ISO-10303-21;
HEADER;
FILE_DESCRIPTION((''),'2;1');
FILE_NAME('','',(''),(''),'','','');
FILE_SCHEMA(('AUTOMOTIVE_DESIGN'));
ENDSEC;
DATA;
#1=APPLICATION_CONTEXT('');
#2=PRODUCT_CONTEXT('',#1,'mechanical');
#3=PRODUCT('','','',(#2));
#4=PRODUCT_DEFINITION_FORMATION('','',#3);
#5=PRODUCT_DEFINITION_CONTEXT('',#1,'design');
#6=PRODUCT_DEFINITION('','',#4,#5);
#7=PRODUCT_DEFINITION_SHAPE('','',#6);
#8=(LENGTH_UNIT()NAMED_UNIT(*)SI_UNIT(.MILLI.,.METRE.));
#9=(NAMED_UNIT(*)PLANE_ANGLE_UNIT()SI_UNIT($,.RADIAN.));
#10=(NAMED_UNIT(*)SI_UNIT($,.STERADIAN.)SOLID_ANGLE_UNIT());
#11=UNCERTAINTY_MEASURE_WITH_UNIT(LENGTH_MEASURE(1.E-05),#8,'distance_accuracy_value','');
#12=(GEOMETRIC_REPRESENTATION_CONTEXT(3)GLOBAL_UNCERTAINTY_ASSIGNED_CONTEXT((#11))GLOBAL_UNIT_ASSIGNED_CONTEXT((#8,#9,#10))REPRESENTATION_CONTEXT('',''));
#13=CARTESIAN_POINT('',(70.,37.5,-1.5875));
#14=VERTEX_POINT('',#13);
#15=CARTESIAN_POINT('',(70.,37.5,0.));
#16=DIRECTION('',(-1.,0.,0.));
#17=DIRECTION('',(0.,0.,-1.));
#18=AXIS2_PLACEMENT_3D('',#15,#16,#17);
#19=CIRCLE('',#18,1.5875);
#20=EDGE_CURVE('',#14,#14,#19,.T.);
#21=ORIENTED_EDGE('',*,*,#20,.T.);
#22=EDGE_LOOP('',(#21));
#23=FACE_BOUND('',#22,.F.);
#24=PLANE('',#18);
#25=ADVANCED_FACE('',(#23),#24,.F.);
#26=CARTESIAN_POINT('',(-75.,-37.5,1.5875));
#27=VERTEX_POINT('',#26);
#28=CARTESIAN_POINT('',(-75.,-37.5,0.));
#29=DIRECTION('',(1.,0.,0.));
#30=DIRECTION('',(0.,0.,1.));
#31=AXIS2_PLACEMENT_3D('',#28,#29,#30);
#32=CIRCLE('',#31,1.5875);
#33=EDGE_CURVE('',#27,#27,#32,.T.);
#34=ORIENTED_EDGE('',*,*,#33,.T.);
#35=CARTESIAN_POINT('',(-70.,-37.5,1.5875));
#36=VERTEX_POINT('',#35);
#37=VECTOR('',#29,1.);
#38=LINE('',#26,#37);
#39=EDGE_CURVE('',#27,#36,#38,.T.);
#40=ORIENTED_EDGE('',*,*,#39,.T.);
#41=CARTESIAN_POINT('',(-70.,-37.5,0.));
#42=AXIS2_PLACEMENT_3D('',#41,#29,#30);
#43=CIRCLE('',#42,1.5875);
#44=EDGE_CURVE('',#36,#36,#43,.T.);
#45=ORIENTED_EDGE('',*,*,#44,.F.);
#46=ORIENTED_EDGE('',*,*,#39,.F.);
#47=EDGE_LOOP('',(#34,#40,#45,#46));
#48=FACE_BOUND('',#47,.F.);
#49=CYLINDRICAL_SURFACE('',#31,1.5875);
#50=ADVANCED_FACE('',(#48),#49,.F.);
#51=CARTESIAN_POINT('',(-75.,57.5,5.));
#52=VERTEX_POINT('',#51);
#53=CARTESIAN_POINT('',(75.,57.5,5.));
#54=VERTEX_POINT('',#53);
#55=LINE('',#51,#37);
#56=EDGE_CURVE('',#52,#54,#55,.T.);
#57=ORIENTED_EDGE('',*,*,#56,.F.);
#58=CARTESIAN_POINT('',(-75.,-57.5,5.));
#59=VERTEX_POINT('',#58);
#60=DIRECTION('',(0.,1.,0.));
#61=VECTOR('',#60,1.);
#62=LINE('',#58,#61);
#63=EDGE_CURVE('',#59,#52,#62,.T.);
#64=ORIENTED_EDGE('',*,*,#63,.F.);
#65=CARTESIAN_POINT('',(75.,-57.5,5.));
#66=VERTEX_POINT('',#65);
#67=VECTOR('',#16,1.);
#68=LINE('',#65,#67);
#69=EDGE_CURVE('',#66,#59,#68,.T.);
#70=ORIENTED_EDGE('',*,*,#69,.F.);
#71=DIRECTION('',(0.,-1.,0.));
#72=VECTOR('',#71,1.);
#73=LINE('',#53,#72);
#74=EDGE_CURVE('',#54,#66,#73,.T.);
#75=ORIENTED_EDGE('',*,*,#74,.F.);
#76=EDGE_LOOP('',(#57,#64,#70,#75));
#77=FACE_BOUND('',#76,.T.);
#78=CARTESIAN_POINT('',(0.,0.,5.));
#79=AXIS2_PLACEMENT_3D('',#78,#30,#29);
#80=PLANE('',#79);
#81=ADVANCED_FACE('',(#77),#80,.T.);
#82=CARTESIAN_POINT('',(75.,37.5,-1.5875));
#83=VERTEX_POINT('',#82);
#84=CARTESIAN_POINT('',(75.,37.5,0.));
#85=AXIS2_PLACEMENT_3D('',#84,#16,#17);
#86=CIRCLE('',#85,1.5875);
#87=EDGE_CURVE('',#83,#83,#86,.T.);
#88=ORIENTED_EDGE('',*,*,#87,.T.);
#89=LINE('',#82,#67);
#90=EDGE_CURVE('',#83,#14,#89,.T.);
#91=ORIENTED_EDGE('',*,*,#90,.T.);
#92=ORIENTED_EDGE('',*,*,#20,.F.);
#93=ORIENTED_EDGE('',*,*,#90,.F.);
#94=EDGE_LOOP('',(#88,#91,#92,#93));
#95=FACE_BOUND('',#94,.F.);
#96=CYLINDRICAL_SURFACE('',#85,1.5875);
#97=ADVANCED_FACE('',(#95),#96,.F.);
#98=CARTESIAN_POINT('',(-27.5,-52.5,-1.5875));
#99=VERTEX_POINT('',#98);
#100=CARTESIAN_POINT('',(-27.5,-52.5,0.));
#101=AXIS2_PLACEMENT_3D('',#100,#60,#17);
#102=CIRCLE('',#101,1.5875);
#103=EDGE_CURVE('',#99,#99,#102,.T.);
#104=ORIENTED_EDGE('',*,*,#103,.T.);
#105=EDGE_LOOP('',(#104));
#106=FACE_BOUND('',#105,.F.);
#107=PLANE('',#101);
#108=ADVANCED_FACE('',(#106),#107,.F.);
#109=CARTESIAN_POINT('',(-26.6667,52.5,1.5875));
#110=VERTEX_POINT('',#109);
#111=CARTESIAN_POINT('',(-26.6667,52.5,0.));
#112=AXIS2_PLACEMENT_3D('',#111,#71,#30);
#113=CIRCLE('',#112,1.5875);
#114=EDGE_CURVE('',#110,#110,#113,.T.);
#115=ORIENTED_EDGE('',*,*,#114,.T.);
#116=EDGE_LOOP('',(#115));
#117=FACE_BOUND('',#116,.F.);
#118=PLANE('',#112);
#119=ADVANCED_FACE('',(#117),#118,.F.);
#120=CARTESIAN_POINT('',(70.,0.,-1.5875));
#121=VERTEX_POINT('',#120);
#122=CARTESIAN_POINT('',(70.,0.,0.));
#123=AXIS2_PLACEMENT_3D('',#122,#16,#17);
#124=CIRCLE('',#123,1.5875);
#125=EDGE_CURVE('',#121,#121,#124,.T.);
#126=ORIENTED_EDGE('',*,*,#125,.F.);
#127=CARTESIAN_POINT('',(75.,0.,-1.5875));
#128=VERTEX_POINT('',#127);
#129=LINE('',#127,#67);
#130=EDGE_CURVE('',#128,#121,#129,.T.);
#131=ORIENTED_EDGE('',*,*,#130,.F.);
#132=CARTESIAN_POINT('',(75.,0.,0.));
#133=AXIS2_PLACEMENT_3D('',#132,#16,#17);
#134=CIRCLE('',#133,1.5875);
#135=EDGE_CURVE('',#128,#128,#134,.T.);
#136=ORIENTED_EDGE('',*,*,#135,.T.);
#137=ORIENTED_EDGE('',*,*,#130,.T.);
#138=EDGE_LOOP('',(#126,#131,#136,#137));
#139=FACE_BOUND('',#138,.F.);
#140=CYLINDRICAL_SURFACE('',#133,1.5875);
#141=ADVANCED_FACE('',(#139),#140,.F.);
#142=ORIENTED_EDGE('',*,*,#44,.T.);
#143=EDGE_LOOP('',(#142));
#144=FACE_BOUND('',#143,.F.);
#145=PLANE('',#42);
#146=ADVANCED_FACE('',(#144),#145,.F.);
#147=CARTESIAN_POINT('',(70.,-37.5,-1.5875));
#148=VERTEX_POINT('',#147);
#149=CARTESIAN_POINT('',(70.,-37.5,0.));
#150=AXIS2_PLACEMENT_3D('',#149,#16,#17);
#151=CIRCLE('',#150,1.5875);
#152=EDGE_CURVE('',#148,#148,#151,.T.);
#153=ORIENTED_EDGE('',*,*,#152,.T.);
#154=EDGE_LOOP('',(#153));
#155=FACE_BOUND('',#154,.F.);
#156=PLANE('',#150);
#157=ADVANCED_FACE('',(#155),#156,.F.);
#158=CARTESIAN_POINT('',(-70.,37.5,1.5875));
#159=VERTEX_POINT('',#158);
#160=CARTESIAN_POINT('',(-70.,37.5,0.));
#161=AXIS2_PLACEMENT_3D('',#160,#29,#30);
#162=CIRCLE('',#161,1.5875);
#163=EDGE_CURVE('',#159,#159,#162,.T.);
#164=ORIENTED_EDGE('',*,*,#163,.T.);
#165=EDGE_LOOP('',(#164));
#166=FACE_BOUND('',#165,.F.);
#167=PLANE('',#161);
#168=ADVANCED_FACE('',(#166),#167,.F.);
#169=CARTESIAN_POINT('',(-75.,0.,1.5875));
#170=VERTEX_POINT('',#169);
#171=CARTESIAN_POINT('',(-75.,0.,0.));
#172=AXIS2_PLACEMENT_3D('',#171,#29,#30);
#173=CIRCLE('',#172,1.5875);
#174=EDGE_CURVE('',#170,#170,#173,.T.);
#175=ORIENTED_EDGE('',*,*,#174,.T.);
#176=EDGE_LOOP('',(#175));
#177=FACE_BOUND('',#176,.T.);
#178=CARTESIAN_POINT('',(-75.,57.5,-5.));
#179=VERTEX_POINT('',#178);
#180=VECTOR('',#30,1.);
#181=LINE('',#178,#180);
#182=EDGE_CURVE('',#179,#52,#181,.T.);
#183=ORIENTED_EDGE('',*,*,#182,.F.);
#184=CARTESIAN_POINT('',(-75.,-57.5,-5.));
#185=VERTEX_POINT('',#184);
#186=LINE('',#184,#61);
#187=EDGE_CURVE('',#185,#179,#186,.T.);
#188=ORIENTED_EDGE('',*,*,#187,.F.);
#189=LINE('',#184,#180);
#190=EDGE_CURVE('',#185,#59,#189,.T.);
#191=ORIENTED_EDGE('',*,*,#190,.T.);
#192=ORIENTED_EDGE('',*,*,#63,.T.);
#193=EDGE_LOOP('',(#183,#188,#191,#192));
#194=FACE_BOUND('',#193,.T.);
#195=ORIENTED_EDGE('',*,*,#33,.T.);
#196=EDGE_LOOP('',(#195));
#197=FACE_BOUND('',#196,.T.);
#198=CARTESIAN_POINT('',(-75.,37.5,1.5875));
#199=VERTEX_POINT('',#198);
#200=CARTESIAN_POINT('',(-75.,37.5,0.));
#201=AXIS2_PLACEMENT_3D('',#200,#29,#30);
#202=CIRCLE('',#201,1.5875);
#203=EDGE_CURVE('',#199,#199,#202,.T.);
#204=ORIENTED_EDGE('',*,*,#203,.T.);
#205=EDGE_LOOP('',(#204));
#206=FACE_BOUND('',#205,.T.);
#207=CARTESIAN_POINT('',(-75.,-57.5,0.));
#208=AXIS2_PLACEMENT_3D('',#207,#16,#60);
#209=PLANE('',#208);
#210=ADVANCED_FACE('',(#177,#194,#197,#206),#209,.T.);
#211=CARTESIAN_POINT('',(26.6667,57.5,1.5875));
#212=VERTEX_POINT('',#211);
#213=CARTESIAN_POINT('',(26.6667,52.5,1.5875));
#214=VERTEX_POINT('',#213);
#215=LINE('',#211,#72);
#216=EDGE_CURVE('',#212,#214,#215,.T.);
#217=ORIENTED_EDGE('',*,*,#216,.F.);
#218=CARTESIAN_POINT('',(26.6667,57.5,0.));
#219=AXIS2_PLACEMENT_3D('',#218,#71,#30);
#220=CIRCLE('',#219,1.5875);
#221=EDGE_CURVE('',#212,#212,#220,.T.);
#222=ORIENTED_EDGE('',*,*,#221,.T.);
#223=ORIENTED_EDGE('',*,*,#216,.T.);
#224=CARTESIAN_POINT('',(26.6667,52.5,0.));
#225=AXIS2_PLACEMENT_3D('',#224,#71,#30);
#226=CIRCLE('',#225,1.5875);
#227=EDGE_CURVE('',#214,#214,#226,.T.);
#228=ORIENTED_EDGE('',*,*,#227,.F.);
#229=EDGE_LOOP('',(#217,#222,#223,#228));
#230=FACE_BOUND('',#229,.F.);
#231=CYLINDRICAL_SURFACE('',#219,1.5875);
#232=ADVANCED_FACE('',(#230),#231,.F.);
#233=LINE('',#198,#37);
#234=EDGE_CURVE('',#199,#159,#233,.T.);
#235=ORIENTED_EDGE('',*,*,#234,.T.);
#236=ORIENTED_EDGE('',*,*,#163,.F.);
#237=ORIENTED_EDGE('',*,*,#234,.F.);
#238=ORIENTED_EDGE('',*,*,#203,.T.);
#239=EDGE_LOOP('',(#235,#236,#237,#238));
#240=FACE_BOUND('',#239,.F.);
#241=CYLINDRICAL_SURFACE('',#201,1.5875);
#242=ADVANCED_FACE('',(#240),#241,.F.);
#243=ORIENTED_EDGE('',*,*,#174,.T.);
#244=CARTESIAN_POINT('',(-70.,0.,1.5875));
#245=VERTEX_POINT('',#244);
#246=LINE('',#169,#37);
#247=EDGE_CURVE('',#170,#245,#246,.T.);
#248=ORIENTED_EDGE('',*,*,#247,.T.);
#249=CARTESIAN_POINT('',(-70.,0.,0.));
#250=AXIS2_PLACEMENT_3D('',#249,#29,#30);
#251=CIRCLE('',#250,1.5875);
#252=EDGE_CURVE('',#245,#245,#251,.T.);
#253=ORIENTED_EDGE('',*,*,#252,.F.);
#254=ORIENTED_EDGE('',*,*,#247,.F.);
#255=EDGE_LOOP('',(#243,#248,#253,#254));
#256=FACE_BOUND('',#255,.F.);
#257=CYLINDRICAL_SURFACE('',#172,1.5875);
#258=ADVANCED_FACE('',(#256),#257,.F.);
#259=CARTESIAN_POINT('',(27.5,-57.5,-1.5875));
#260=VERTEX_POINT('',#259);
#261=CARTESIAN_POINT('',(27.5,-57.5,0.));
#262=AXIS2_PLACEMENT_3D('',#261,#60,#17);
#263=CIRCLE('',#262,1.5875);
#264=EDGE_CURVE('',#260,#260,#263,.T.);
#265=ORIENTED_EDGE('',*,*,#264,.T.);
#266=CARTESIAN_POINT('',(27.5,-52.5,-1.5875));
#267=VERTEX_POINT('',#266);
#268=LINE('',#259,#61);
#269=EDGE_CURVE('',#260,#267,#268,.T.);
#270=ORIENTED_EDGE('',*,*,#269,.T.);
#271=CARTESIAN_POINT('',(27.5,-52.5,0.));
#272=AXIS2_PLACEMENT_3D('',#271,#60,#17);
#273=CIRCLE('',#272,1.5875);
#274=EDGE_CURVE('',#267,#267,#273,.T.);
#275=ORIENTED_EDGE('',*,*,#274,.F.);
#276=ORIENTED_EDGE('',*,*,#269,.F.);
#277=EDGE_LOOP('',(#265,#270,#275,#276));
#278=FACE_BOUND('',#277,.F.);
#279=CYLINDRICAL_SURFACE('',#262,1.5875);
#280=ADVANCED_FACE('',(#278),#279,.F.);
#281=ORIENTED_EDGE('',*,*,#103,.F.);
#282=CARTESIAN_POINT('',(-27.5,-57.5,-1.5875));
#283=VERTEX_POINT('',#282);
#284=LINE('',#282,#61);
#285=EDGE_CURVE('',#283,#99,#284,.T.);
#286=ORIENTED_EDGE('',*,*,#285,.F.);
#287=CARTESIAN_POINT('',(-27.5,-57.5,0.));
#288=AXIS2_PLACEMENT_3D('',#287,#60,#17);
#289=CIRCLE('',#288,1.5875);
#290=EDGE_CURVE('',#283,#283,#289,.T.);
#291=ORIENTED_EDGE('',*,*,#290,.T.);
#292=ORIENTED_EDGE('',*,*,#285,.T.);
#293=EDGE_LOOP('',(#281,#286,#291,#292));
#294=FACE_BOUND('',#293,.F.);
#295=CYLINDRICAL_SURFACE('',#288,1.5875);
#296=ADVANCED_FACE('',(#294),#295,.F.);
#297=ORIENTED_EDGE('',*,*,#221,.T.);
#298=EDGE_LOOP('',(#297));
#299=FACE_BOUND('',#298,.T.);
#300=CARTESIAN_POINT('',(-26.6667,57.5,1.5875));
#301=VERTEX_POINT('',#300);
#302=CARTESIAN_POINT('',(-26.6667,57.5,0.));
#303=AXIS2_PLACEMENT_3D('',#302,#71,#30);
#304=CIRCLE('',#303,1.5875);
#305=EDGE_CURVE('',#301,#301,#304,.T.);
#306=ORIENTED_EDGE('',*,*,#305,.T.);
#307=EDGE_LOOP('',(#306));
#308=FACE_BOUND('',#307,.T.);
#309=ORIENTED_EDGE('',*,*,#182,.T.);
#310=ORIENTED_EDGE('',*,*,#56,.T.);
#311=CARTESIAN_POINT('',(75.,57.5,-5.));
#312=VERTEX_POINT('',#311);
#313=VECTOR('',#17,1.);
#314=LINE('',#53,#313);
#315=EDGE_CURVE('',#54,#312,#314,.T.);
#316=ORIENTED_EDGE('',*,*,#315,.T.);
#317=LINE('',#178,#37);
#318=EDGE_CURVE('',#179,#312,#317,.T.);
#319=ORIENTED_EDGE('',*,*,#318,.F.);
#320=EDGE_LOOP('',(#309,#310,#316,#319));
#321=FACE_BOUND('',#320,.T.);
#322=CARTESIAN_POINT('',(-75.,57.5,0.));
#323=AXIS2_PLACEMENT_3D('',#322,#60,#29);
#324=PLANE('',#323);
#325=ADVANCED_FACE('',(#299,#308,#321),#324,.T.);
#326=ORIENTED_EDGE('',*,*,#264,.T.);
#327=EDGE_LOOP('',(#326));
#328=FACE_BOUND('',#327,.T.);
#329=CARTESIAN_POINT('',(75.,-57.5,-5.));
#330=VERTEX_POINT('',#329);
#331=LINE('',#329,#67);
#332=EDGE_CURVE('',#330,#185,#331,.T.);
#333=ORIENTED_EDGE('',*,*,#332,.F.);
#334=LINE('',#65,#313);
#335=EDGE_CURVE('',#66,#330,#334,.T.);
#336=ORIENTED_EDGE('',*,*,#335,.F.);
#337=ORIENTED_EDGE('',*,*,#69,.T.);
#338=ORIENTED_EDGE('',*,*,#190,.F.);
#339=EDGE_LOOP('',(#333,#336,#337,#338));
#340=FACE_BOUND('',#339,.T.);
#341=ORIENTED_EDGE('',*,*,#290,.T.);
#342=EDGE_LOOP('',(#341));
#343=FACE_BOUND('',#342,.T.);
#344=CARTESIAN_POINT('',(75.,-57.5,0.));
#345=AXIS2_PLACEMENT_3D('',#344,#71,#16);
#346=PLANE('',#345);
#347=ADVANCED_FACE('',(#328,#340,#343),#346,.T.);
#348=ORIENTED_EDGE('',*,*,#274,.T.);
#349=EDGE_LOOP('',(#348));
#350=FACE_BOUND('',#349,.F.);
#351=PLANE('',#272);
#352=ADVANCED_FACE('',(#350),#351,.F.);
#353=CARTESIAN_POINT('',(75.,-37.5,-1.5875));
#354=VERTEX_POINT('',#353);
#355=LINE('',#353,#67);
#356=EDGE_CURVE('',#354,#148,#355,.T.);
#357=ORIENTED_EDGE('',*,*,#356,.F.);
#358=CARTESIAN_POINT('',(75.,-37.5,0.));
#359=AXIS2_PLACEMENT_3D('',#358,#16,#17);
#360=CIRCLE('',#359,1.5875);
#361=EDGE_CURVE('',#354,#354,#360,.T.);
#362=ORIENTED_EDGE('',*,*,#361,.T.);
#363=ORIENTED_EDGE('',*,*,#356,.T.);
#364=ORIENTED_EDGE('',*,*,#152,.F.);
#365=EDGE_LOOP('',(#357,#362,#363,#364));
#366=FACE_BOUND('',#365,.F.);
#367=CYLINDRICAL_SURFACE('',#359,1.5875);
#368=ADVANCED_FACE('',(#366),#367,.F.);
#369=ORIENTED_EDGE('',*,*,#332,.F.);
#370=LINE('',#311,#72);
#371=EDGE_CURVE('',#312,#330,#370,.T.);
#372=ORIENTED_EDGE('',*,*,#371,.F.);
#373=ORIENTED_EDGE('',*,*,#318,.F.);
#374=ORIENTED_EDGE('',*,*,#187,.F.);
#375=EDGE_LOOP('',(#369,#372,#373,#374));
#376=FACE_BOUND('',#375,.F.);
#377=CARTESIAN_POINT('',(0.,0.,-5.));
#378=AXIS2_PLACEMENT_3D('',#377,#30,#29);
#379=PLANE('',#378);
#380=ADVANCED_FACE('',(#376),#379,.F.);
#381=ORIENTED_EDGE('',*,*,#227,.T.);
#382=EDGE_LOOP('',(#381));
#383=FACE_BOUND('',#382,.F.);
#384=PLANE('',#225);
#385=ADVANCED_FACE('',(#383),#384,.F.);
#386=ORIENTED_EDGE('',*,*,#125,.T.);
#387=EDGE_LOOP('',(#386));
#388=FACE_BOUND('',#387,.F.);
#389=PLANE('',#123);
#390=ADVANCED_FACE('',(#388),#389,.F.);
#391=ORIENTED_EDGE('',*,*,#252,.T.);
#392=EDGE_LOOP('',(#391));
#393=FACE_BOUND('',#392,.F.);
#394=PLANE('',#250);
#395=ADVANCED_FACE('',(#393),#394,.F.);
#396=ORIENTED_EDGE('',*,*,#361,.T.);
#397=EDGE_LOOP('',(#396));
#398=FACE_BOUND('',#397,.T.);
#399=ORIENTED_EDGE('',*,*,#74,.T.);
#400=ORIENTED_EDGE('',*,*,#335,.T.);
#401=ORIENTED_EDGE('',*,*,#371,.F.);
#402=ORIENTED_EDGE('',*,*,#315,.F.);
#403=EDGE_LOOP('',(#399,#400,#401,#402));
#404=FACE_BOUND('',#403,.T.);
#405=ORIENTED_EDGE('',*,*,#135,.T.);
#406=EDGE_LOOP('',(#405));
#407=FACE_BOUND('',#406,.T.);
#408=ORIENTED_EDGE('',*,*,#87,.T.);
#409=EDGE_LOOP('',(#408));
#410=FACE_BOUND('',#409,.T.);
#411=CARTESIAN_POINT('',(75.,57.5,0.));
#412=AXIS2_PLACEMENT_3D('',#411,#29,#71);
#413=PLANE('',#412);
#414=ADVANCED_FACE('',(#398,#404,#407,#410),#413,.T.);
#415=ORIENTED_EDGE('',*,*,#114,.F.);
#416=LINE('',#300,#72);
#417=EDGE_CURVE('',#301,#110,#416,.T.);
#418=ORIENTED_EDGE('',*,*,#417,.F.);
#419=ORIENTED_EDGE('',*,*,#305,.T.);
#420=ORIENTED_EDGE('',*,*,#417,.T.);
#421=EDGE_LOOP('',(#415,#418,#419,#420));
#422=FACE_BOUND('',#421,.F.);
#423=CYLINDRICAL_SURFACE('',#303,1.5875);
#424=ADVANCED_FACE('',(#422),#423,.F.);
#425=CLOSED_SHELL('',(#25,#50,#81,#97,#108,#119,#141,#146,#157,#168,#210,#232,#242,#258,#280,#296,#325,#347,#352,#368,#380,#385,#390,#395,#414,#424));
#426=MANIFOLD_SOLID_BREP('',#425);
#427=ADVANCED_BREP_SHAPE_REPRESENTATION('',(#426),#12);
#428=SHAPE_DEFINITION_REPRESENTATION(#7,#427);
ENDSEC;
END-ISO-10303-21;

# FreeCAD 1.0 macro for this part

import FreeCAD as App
import Part
import Sketcher
Q = App.Units.Quantity

doc = App.newDocument("Part")
params = doc.addObject("Spreadsheet::Sheet", "Params")
for row, (alias, value) in enumerate([
    ("sketch1_width", "150 mm"),
    ("sketch1_height", "115 mm"),
    ("pad1_length", "10 mm"),
    ("hole_diameter", "3.175 mm"),
    ("hole_depth", "5 mm"),
    ("hole2_diameter", "3.175 mm"),
    ("hole2_depth", "5 mm"),
    ("hole3_diameter", "3.175 mm"),
    ("hole3_depth", "5 mm"),
    ("hole4_diameter", "3.175 mm"),
    ("hole4_depth", "5 mm"),
], start=1):
    params.set(f"A{row}", alias)
    params.set(f"B{row}", "=" + value)
    params.setAlias(f"B{row}", alias)

body = doc.addObject("PartDesign::Body", "Body")

# Sketch on XY plane
sketch1 = body.newObject("Sketcher::SketchObject", "Sketch")
sketch1.AttachmentSupport = (doc.getObject("XY_Plane"), [""])
sketch1.MapMode = "FlatFace"
sketch1.addGeometry(Part.LineSegment(App.Vector(75, 57.5, 0), App.Vector(-75, 57.5, 0)), False)
sketch1.addGeometry(Part.LineSegment(App.Vector(-75, 57.5, 0), App.Vector(-75, -57.5, 0)), False)
sketch1.addGeometry(Part.LineSegment(App.Vector(-75, -57.5, 0), App.Vector(75, -57.5, 0)), False)
sketch1.addGeometry(Part.LineSegment(App.Vector(75, -57.5, 0), App.Vector(75, 57.5, 0)), False)
sketch1.addConstraint(Sketcher.Constraint("Coincident", 0, 2, 1, 1))
sketch1.addConstraint(Sketcher.Constraint("Coincident", 1, 2, 2, 1))
sketch1.addConstraint(Sketcher.Constraint("Coincident", 2, 2, 3, 1))
sketch1.addConstraint(Sketcher.Constraint("Coincident", 3, 2, 0, 1))
sketch1.addConstraint(Sketcher.Constraint("Horizontal", 0))
sketch1.addConstraint(Sketcher.Constraint("Vertical", 1))
sketch1.addConstraint(Sketcher.Constraint("Horizontal", 2))
sketch1.addConstraint(Sketcher.Constraint("Vertical", 3))
sketch1.addConstraint(Sketcher.Constraint("Symmetric", 0, 2, 2, 2, -1, 1))
sketch1.addConstraint(Sketcher.Constraint("DistanceX", 0, 2, 0, 1, Q("150 mm")))
sketch1.addConstraint(Sketcher.Constraint("DistanceY", 1, 2, 1, 1, Q("115 mm")))
sketch1.setExpression("Constraints[9]", "Params.sketch1_width")
sketch1.setExpression("Constraints[10]", "Params.sketch1_height")
pad1 = body.newObject("PartDesign::Pad", "Pad")
pad1.Profile = sketch1
pad1.setExpression("Length", "Params.pad1_length")
pad1.Midplane = True

# Sketch on YZ plane
sketch2 = body.newObject("Sketcher::SketchObject", "Sketch001")
sketch2.AttachmentSupport = (doc.getObject("YZ_Plane"), [""])
sketch2.MapMode = "FlatFace"
sketch2.AttachmentOffset = App.Placement(App.Vector(0, 0, 75), App.Rotation())
sketch2.addGeometry(Part.Circle(App.Vector(-37.5, 0, 0), App.Vector(0, 0, 1), 1.5875), False)
sketch2.addGeometry(Part.Circle(App.Vector(0, 0, 0), App.Vector(0, 0, 1), 1.5875), False)
sketch2.addGeometry(Part.Circle(App.Vector(37.5, 0, 0), App.Vector(0, 0, 1), 1.5875), False)
sketch2.addConstraint(Sketcher.Constraint("Coincident", 1, 3, -1, 1))
sketch2.addConstraint(Sketcher.Constraint("Equal", 0, 1))
sketch2.addConstraint(Sketcher.Constraint("Equal", 1, 2))
sketch2.addConstraint(Sketcher.Constraint("Symmetric", 0, 3, 2, 3, -1, 1))
sketch2.addConstraint(Sketcher.Constraint("PointOnObject", 0, 3, -1))
sketch2.addConstraint(Sketcher.Constraint("Diameter", 0, Q("3.175 mm")))
sketch2.addConstraint(Sketcher.Constraint("DistanceX", 0, 3, 2, 3, Q("75 mm")))
doc.recompute()
hole = body.newObject("PartDesign::Hole", "Hole")
hole.Profile = sketch2
hole.ThreadType = "None"
hole.setExpression("Diameter", "Params.hole_diameter")
hole.DepthType = "Dimension"
hole.setExpression("Depth", "Params.hole_depth")
hole.DrillPoint = "Flat"

# Sketch on XZ plane
sketch3 = body.newObject("Sketcher::SketchObject", "Sketch002")
sketch3.AttachmentSupport = (doc.getObject("XZ_Plane"), [""])
sketch3.MapMode = "FlatFace"
sketch3.AttachmentOffset = App.Placement(App.Vector(0, 0, -57.5), App.Rotation())
sketch3.addGeometry(Part.Circle(App.Vector(26.6667, 0, 0), App.Vector(0, 0, 1), 1.5875), False)
sketch3.addGeometry(Part.Circle(App.Vector(-26.6667, 0, 0), App.Vector(0, 0, 1), 1.5875), False)
sketch3.addConstraint(Sketcher.Constraint("Equal", 0, 1))
sketch3.addConstraint(Sketcher.Constraint("Symmetric", 0, 3, 1, 3, -1, 1))
sketch3.addConstraint(Sketcher.Constraint("PointOnObject", 0, 3, -1))
sketch3.addConstraint(Sketcher.Constraint("Diameter", 0, Q("3.175 mm")))
sketch3.addConstraint(Sketcher.Constraint("DistanceX", -1, 1, 0, 3, Q("26.6667 mm")))
doc.recompute()
hole2 = body.newObject("PartDesign::Hole", "Hole001")
hole2.Profile = sketch3
hole2.ThreadType = "None"
hole2.setExpression("Diameter", "Params.hole2_diameter")
hole2.DepthType = "Dimension"
hole2.setExpression("Depth", "Params.hole2_depth")
hole2.DrillPoint = "Flat"
hole2.Reversed = True

# Sketch on XZ plane
sketch4 = body.newObject("Sketcher::SketchObject", "Sketch003")
sketch4.AttachmentSupport = (doc.getObject("XZ_Plane"), [""])
sketch4.MapMode = "FlatFace"
sketch4.AttachmentOffset = App.Placement(App.Vector(0, 0, 57.5), App.Rotation())
sketch4.addGeometry(Part.Circle(App.Vector(27.5, 0, 0), App.Vector(0, 0, 1), 1.5875), False)
sketch4.addGeometry(Part.Circle(App.Vector(-27.5, 0, 0), App.Vector(0, 0, 1), 1.5875), False)
sketch4.addConstraint(Sketcher.Constraint("Equal", 0, 1))
sketch4.addConstraint(Sketcher.Constraint("Symmetric", 0, 3, 1, 3, -1, 1))
sketch4.addConstraint(Sketcher.Constraint("PointOnObject", 0, 3, -1))
sketch4.addConstraint(Sketcher.Constraint("Diameter", 0, Q("3.175 mm")))
sketch4.addConstraint(Sketcher.Constraint("DistanceX", 1, 3, 0, 3, Q("55 mm")))
doc.recompute()
hole3 = body.newObject("PartDesign::Hole", "Hole002")
hole3.Profile = sketch4
hole3.ThreadType = "None"
hole3.setExpression("Diameter", "Params.hole3_diameter")
hole3.DepthType = "Dimension"
hole3.setExpression("Depth", "Params.hole3_depth")
hole3.DrillPoint = "Flat"

# Sketch on YZ plane
sketch5 = body.newObject("Sketcher::SketchObject", "Sketch004")
sketch5.AttachmentSupport = (doc.getObject("YZ_Plane"), [""])
sketch5.MapMode = "FlatFace"
sketch5.AttachmentOffset = App.Placement(App.Vector(0, 0, -75), App.Rotation())
sketch5.addGeometry(Part.Circle(App.Vector(-37.5, 0, 0), App.Vector(0, 0, 1), 1.5875), False)
sketch5.addGeometry(Part.Circle(App.Vector(0, 0, 0), App.Vector(0, 0, 1), 1.5875), False)
sketch5.addGeometry(Part.Circle(App.Vector(37.5, 0, 0), App.Vector(0, 0, 1), 1.5875), False)
sketch5.addConstraint(Sketcher.Constraint("Coincident", 1, 3, -1, 1))
sketch5.addConstraint(Sketcher.Constraint("Equal", 0, 1))
sketch5.addConstraint(Sketcher.Constraint("Equal", 1, 2))
sketch5.addConstraint(Sketcher.Constraint("Symmetric", 0, 3, 2, 3, -1, 1))
sketch5.addConstraint(Sketcher.Constraint("PointOnObject", 0, 3, -1))
sketch5.addConstraint(Sketcher.Constraint("Diameter", 0, Q("3.175 mm")))
sketch5.addConstraint(Sketcher.Constraint("DistanceX", 0, 3, 2, 3, Q("75 mm")))
doc.recompute()
hole4 = body.newObject("PartDesign::Hole", "Hole003")
hole4.Profile = sketch5
hole4.ThreadType = "None"
hole4.setExpression("Diameter", "Params.hole4_diameter")
hole4.DepthType = "Dimension"
hole4.setExpression("Depth", "Params.hole4_depth")
hole4.DrillPoint = "Flat"
hole4.Reversed = True

doc.recompute()
